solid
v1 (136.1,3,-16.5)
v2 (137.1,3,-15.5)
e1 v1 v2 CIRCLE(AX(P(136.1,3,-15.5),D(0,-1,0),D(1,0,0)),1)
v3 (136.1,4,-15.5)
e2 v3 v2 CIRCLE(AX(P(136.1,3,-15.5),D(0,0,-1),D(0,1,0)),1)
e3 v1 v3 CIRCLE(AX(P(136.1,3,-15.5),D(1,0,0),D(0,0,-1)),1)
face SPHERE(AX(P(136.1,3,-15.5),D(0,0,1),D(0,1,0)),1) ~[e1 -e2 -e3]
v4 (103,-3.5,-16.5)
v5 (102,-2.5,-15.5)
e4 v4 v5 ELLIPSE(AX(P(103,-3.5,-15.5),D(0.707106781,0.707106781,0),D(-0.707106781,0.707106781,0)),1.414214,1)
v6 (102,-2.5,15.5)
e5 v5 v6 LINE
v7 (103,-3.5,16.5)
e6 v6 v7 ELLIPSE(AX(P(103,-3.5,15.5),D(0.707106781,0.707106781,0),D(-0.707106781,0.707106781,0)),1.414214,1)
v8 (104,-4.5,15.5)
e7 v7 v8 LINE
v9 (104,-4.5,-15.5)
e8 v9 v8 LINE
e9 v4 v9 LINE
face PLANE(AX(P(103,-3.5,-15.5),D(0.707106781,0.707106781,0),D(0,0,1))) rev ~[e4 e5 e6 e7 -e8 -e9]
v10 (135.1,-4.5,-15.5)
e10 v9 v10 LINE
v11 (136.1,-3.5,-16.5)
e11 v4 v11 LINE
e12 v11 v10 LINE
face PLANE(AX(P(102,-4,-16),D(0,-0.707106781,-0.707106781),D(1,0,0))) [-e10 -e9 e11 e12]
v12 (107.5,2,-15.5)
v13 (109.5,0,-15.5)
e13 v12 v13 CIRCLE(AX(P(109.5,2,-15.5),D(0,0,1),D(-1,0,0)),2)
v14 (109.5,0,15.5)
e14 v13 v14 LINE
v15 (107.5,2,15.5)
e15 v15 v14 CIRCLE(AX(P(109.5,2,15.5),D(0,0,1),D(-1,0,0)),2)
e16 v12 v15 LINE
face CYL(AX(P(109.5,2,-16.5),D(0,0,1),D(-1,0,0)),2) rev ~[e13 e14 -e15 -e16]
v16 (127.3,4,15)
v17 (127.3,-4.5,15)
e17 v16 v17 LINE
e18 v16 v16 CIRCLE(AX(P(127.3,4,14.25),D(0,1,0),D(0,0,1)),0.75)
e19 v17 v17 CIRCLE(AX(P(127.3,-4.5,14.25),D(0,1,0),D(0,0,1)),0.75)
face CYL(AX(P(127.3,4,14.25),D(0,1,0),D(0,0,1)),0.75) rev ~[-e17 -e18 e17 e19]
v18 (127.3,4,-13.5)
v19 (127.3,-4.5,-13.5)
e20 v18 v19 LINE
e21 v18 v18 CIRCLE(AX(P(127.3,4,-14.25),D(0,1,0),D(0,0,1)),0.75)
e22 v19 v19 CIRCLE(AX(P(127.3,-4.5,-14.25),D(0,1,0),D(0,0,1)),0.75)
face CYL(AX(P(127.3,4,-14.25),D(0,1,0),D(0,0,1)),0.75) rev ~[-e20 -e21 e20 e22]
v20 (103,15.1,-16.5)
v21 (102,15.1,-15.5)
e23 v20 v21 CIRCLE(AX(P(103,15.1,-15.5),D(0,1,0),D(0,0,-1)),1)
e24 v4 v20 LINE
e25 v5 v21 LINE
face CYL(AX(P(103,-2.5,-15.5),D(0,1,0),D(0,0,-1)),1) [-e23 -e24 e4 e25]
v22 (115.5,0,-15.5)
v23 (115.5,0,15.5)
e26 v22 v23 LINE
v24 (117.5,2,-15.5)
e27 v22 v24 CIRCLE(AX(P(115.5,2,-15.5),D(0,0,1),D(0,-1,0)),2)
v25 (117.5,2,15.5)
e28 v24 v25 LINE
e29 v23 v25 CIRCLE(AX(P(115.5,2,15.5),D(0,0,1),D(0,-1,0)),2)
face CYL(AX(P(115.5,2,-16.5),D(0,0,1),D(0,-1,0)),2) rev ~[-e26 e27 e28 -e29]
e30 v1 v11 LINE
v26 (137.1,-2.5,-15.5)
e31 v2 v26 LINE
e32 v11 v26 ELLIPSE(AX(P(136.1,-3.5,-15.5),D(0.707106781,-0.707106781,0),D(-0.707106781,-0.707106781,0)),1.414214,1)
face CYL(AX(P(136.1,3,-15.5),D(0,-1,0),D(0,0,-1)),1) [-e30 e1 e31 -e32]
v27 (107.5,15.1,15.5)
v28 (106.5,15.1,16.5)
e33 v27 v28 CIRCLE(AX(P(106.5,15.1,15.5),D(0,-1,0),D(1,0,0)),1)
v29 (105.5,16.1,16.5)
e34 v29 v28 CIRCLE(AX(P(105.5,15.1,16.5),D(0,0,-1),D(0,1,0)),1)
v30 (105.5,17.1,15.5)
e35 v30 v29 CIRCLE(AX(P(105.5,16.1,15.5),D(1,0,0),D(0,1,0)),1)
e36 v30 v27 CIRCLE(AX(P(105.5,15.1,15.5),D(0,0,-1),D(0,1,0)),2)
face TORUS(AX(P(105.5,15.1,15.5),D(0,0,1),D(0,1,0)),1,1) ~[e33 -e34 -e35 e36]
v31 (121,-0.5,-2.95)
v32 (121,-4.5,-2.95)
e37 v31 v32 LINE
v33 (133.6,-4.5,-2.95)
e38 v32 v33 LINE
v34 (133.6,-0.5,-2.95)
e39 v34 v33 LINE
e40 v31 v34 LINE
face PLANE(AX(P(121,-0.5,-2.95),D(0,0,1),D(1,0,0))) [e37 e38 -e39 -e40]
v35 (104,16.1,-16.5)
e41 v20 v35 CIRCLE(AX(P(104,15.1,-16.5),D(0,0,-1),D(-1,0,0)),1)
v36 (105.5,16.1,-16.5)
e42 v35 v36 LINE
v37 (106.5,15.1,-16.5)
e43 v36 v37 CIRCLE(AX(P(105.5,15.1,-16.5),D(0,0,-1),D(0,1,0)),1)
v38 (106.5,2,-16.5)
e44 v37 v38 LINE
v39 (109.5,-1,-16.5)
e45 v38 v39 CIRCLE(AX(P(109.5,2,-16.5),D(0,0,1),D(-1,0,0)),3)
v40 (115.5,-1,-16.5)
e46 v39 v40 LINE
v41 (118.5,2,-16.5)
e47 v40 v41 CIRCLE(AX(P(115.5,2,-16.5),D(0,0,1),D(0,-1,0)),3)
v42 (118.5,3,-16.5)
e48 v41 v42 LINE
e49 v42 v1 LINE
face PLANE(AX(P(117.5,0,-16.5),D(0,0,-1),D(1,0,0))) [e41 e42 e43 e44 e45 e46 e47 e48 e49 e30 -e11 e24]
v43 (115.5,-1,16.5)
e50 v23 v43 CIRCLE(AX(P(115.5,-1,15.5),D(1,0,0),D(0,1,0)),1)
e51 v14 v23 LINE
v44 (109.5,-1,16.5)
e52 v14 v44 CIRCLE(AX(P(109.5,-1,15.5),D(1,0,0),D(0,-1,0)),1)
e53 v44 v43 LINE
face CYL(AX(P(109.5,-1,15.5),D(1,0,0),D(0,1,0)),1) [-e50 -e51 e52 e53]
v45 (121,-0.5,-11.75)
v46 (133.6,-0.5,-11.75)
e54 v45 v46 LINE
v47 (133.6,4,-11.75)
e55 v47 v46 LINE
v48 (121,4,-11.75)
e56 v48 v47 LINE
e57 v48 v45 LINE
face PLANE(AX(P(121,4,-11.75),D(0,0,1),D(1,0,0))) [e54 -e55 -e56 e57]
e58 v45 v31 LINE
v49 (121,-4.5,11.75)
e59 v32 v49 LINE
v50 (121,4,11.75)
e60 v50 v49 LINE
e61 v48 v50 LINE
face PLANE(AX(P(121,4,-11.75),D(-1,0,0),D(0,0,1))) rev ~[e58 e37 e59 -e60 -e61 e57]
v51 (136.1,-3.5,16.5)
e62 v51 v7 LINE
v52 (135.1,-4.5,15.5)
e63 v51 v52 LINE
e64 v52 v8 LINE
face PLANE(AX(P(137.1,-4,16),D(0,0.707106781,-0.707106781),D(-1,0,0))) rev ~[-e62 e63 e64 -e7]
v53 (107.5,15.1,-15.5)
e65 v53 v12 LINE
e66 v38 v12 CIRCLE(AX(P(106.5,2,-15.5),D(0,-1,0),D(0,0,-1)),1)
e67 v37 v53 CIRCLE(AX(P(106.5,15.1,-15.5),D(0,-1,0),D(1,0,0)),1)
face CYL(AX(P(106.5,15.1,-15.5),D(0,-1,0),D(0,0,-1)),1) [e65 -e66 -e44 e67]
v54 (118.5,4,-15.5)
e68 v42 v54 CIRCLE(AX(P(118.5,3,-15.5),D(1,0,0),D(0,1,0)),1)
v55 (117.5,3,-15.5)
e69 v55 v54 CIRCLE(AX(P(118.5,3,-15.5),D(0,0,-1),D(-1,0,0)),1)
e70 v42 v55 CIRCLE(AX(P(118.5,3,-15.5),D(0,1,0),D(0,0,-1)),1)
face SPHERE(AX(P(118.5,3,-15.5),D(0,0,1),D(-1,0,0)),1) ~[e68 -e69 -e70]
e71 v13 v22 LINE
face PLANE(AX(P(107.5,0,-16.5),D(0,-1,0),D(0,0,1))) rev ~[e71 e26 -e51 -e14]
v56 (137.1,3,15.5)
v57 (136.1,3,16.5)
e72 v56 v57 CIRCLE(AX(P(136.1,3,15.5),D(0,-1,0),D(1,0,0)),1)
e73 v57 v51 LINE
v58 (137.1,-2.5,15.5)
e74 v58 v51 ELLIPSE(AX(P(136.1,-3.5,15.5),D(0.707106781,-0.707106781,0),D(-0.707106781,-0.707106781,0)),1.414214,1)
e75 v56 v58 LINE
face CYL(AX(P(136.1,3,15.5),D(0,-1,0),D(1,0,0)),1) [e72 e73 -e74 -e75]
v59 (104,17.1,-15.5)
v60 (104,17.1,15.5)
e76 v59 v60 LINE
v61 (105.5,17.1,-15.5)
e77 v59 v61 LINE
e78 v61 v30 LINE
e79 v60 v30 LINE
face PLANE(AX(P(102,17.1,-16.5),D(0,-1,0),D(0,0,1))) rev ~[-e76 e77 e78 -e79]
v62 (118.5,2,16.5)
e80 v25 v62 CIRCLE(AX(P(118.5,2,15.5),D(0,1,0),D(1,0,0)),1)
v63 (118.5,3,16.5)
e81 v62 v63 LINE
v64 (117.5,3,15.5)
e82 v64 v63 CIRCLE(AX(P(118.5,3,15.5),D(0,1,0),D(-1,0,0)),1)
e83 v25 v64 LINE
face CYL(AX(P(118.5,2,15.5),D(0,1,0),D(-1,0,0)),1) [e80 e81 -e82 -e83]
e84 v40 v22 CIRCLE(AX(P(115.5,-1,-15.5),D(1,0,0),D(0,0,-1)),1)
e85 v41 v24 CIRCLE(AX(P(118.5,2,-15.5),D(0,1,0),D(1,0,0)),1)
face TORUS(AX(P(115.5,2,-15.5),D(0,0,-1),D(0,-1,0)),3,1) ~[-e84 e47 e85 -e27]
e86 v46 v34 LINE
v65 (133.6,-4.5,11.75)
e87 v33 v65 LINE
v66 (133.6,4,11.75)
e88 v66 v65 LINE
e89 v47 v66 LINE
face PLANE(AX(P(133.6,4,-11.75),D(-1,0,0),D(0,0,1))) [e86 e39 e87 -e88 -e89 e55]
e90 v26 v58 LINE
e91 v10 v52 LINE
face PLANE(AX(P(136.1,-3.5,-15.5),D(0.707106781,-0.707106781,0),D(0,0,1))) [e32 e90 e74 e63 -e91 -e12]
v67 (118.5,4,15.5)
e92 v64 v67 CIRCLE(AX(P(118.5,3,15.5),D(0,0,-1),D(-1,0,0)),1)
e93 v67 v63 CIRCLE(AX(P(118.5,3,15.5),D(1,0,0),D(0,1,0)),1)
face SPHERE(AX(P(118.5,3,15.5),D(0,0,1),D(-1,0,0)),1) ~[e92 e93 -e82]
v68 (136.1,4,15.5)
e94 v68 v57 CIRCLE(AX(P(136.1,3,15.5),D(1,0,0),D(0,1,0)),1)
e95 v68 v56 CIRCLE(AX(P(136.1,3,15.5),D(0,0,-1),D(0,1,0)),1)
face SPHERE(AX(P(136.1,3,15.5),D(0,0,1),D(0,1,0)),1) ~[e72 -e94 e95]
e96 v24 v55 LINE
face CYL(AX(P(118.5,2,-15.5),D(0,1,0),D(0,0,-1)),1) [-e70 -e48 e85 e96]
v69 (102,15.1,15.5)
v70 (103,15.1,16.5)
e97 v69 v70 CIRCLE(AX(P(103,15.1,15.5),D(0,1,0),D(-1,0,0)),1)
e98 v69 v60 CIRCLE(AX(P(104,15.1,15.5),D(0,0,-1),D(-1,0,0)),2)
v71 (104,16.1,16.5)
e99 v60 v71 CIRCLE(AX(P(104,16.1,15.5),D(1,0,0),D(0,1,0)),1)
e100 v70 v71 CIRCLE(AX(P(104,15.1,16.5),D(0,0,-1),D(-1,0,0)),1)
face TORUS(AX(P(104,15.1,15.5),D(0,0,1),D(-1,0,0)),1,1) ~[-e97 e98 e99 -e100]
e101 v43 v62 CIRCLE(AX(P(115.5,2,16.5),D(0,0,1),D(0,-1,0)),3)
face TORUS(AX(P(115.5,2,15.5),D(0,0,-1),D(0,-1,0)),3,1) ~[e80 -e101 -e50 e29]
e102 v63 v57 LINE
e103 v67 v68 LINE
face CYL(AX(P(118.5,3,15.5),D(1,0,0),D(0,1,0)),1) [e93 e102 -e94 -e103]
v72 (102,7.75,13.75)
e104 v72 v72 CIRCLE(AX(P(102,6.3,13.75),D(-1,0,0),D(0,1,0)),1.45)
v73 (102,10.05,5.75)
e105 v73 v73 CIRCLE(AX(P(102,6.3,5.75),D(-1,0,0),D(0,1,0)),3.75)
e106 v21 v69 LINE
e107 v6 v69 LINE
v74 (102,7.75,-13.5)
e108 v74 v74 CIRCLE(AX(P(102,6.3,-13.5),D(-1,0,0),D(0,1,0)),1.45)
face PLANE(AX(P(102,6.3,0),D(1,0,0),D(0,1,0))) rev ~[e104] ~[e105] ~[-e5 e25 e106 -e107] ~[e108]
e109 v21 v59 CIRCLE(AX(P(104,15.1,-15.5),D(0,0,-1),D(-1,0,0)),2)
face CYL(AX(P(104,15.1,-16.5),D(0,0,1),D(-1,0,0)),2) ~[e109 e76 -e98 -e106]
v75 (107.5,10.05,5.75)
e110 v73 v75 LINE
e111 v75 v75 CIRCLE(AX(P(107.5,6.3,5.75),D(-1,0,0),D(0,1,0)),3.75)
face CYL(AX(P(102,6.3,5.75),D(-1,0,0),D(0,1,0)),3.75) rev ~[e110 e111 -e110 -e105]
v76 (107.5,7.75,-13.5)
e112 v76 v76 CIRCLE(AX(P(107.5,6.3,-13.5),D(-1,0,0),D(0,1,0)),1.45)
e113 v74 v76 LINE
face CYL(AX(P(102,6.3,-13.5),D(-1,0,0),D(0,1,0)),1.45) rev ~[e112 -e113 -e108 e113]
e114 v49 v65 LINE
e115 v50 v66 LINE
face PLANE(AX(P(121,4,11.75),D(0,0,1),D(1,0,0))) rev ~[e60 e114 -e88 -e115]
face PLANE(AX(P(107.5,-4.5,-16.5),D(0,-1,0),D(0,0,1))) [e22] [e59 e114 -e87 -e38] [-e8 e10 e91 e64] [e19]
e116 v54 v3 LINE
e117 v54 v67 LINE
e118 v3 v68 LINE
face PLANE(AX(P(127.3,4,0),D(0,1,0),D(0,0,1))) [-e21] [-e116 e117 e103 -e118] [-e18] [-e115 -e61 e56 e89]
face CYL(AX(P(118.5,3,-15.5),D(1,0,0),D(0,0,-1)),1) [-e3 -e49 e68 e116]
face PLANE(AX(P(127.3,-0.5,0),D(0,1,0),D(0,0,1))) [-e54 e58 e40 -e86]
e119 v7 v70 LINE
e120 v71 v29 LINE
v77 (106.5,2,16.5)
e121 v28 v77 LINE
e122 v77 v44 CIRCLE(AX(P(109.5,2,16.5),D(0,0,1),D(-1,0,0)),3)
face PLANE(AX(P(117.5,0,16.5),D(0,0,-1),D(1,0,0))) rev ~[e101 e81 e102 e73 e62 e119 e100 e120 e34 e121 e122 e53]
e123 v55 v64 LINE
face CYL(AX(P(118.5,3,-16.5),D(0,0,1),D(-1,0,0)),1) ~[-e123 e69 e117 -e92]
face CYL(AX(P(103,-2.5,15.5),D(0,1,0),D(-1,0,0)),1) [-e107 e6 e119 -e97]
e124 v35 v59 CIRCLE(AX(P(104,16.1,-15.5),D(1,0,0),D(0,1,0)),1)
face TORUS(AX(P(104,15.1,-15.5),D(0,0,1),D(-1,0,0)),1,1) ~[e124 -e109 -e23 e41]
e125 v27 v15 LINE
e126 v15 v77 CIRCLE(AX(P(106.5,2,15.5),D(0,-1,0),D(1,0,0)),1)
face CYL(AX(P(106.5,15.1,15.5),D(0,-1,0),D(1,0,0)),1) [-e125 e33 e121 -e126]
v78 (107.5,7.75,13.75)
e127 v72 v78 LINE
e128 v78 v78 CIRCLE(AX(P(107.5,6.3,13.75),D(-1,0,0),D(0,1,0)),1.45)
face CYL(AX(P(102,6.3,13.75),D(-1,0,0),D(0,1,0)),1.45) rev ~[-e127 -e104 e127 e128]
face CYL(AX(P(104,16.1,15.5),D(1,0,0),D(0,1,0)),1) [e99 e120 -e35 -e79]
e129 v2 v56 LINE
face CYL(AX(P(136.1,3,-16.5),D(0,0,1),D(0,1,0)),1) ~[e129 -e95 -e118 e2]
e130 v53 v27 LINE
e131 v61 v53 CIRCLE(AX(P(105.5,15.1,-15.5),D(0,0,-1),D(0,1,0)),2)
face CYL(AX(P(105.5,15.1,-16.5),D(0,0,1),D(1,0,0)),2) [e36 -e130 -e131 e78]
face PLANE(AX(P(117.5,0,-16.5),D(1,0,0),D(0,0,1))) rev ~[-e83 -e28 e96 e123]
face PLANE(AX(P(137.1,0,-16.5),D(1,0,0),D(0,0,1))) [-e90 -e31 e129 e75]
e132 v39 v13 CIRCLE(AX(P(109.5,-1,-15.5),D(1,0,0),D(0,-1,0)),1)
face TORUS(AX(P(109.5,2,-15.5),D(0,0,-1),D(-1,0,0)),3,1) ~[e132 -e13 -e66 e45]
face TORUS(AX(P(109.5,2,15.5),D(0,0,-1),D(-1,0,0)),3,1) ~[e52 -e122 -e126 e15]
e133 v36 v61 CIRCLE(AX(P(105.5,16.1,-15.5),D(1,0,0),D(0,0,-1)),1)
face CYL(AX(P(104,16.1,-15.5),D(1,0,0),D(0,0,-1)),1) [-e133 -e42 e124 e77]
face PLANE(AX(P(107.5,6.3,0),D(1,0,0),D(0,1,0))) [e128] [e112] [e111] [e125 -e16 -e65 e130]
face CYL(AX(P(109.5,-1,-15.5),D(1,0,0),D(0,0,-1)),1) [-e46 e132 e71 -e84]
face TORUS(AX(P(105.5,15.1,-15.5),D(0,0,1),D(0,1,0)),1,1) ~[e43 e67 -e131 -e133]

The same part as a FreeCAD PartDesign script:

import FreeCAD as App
import Part
import Sketcher
from FreeCAD import Vector
Q = App.Units.Quantity


def edges_at(feature, points):
    """Names of the edges that pass closest to the given points."""
    edges = feature.Shape.Edges
    near = lambda p: min(range(len(edges)), key=lambda i: edges[i].distToShape(Part.Vertex(*p))[0])
    return sorted({f"Edge{near(p) + 1}" for p in points})


def add_polygon(sketch, points):
    """Adds a closed chain of lines whose ends are joined by coincident constraints."""
    first, n = sketch.GeometryCount, len(points)
    for a, b in zip(points, points[1:] + points[:1]):
        sketch.addGeometry(Part.LineSegment(App.Vector(*a, 0), App.Vector(*b, 0)), False)
    for i in range(n):
        sketch.addConstraint(Sketcher.Constraint("Coincident", first + i, 2, first + (i + 1) % n, 1))

doc = App.newDocument("Part")
body = doc.addObject("PartDesign::Body", "Body")

sketch1 = doc.addObject("Sketcher::SketchObject", "Sketch")
body.addObject(sketch1)
sketch1.AttachmentSupport = (doc.YZ_Plane, [""])
sketch1.MapMode = "FlatFace"
add_polygon(sketch1, [(-4, 16), (-4, -16), (17, -16), (17, 16)])
sketch1.addConstraint([
    Sketcher.Constraint("Vertical", 0),
    Sketcher.Constraint("Horizontal", 1),
    Sketcher.Constraint("Vertical", 2),
    Sketcher.Constraint("Horizontal", 3),
    Sketcher.Constraint("DistanceY", 0, 2, 0, 1, Q("33 mm")),
    Sketcher.Constraint("DistanceX", 1, 1, 1, 2, Q("21.6 mm")),
    Sketcher.Constraint("DistanceX", 0, 2, -1, 1, Q("4.5 mm")),
    Sketcher.Constraint("DistanceY", 0, 2, -1, 1, Q("16.5 mm")),
])
pad1 = doc.addObject("PartDesign::Pad", "Pad")
body.addObject(pad1)
pad1.Profile = sketch1
pad1.Length = 5.5

sketch2 = doc.addObject("Sketcher::SketchObject", "Sketch001")
body.addObject(sketch2)
sketch2.AttachmentSupport = (doc.YZ_Plane, [""])
sketch2.MapMode = "FlatFace"
sketch2.AttachmentOffset = App.Placement(Vector(0, 0, 5.5), App.Rotation())
add_polygon(sketch2, [(-4.5, 16.5), (-4.5, -16.5), (0, -16.5), (0, 16.5)])
sketch2.addConstraint([
    Sketcher.Constraint("Vertical", 0),
    Sketcher.Constraint("Horizontal", 1),
    Sketcher.Constraint("Vertical", 2),
    Sketcher.Constraint("Horizontal", 3),
    Sketcher.Constraint("Symmetric", 1, 2, 2, 2, -1, 1),
    Sketcher.Constraint("DistanceY", 0, 2, 0, 1, Q("33 mm")),
    Sketcher.Constraint("DistanceX", 1, 1, 1, 2, Q("4.5 mm")),
])
pad2 = doc.addObject("PartDesign::Pad", "Pad001")
body.addObject(pad2)
pad2.Profile = sketch2
pad2.Length = 29.6

sketch3 = doc.addObject("Sketcher::SketchObject", "Sketch002")
body.addObject(sketch3)
sketch3.AttachmentSupport = (doc.XZ_Plane, [""])
sketch3.MapMode = "FlatFace"
add_polygon(sketch3, [(35, -16), (16, -16), (16, 16), (35, 16)])
sketch3.addConstraint([
    Sketcher.Constraint("Horizontal", 0),
    Sketcher.Constraint("Vertical", 1),
    Sketcher.Constraint("Horizontal", 2),
    Sketcher.Constraint("Vertical", 3),
    Sketcher.Constraint("DistanceY", 1, 1, 1, 2, Q("33 mm")),
    Sketcher.Constraint("DistanceX", 0, 2, 0, 1, Q("19.6 mm")),
    Sketcher.Constraint("DistanceX", -1, 1, 0, 2, Q("15.5 mm")),
    Sketcher.Constraint("DistanceY", 0, 2, -1, 1, Q("16.5 mm")),
])
pad3 = doc.addObject("PartDesign::Pad", "Pad002")
body.addObject(pad3)
pad3.Profile = sketch3
pad3.Length = 4
pad3.Reversed = True

sketch4 = doc.addObject("Sketcher::SketchObject", "Sketch003")
body.addObject(sketch4)
sketch4.AttachmentSupport = (doc.XZ_Plane, [""])
sketch4.MapMode = "FlatFace"
sketch4.AttachmentOffset = App.Placement(Vector(0, 0, -4), App.Rotation())
add_polygon(sketch4, [(32, -12), (19, -12), (19, 12), (32, 12)])
sketch4.addConstraint([
    Sketcher.Constraint("Horizontal", 0),
    Sketcher.Constraint("Vertical", 1),
    Sketcher.Constraint("Horizontal", 2),
    Sketcher.Constraint("Vertical", 3),
    Sketcher.Constraint("DistanceX", 0, 2, 0, 1, Q("12.6 mm")),
    Sketcher.Constraint("DistanceY", 1, 1, 1, 2, Q("23.5 mm")),
    Sketcher.Constraint("DistanceX", -1, 1, 0, 2, Q("19 mm")),
    Sketcher.Constraint("DistanceY", 0, 2, -1, 1, Q("11.75 mm")),
])
pocket1 = doc.addObject("PartDesign::Pocket", "Pocket")
body.addObject(pocket1)
pocket1.Profile = sketch4
pocket1.Length = 4.5
pocket1.Reversed = True

sketch5 = doc.addObject("Sketcher::SketchObject", "Sketch004")
body.addObject(sketch5)
sketch5.AttachmentSupport = (doc.XZ_Plane, [""])
sketch5.MapMode = "FlatFace"
sketch5.AttachmentOffset = App.Placement(Vector(0, 0, 0.5), App.Rotation())
add_polygon(sketch5, [(32, -3), (19, -3), (19, 12), (32, 12)])
sketch5.addConstraint([
    Sketcher.Constraint("Horizontal", 0),
    Sketcher.Constraint("Vertical", 1),
    Sketcher.Constraint("Horizontal", 2),
    Sketcher.Constraint("Vertical", 3),
    Sketcher.Constraint("DistanceX", 0, 2, 0, 1, Q("12.6 mm")),
    Sketcher.Constraint("DistanceY", 1, 1, 1, 2, Q("14.7 mm")),
    Sketcher.Constraint("DistanceX", -1, 1, 0, 2, Q("19 mm")),
    Sketcher.Constraint("DistanceY", 0, 2, -1, 1, Q("2.95 mm")),
])
pocket2 = doc.addObject("PartDesign::Pocket", "Pocket001")
body.addObject(pocket2)
pocket2.Profile = sketch5
pocket2.Length = 4
pocket2.Reversed = True

sketch6 = doc.addObject("Sketcher::SketchObject", "Sketch005")
body.addObject(sketch6)
sketch6.AttachmentSupport = (doc.XZ_Plane, [""])
sketch6.MapMode = "FlatFace"
sketch6.AttachmentOffset = App.Placement(Vector(0, 0, -4), App.Rotation())
sketch6.addGeometry([
    Part.Circle(Vector(25.3, -14.2, 0), Vector(0, 0, 1), 0.8),
    Part.Circle(Vector(25.3, 14.2, 0), Vector(0, 0, 1), 0.8),
], False)
sketch6.addConstraint([
    Sketcher.Constraint("Equal", 0, 1),
    Sketcher.Constraint("Symmetric", 0, 3, 1, 3, -1),
    Sketcher.Constraint("Diameter", 0, Q("1.5 mm")),
    Sketcher.Constraint("DistanceX", -1, 1, 0, 3, Q("25.3 mm")),
    Sketcher.Constraint("DistanceY", 0, 3, 1, 3, Q("28.5 mm")),
])
pocket3 = doc.addObject("PartDesign::Pocket", "Pocket002")
body.addObject(pocket3)
pocket3.Profile = sketch6
pocket3.Length = 9
pocket3.Reversed = True
doc.recompute()

chamfer = doc.addObject("PartDesign::Chamfer", "Chamfer")
body.addObject(chamfer)
chamfer.Base = (pocket3, edges_at(pocket3, [(17.55, -4.5, 16.5), (17.55, -4.5, -16.5)]))
chamfer.Size = 1
doc.recompute()

chamfer2 = doc.addObject("PartDesign::Chamfer", "Chamfer001")
body.addObject(chamfer2)
chamfer2.Base = (chamfer, edges_at(chamfer, [(0, -4.5, 0), (35.1, -4.5, 0)]))
chamfer2.Size = 2
doc.recompute()

fillet = doc.addObject("PartDesign::Fillet", "Fillet")
body.addObject(fillet)
fillet.Base = (chamfer2, edges_at(chamfer2, [(0, 17.1, 0), (5.5, 17.1, 0)]))
fillet.Radius = 2
doc.recompute()

fillet2 = doc.addObject("PartDesign::Fillet", "Fillet001")
body.addObject(fillet2)
fillet2.Base = (fillet, edges_at(fillet, [(5.5, 0, 0)]))
fillet2.Radius = 2
doc.recompute()

fillet3 = doc.addObject("PartDesign::Fillet", "Fillet002")
body.addObject(fillet3)
fillet3.Base = (fillet2, edges_at(fillet2, [(15.5, 0, 0)]))
fillet3.Radius = 2
doc.recompute()

fillet4 = doc.addObject("PartDesign::Fillet", "Fillet003")
body.addObject(fillet4)
fillet4.Base = (fillet3, edges_at(fillet3, [(15.5, 4, 0), (35.1, 4, 0)]))
fillet4.Radius = 1
doc.recompute()

fillet5 = doc.addObject("PartDesign::Fillet", "Fillet004")
body.addObject(fillet5)
fillet5.Base = (fillet4, edges_at(fillet4, [(25.3, 4, 16.5), (25.3, 4, -16.5)]))
fillet5.Radius = 1

sketch7 = doc.addObject("Sketcher::SketchObject", "Sketch006")
body.addObject(sketch7)
sketch7.AttachmentSupport = (doc.YZ_Plane, [""])
sketch7.MapMode = "FlatFace"
sketch7.addGeometry([
    Part.Circle(Vector(6.3, 5.8, 0), Vector(0, 0, 1), 3.8),
    Part.Circle(Vector(6.3, 13.8, 0), Vector(0, 0, 1), 1.4),
    Part.Circle(Vector(6.3, -13.5, 0), Vector(0, 0, 1), 1.4),
], False)
sketch7.addConstraint([
    Sketcher.Constraint("Equal", 1, 2),
    Sketcher.Constraint("Vertical", 0, 3, 1, 3),
    Sketcher.Constraint("Vertical", 1, 3, 2, 3),
    Sketcher.Constraint("Diameter", 0, Q("7.5 mm")),
    Sketcher.Constraint("Diameter", 1, Q("2.9 mm")),
    Sketcher.Constraint("DistanceY", 0, 3, 1, 3, Q("8 mm")),
    Sketcher.Constraint("DistanceX", -1, 1, 0, 3, Q("6.3 mm")),
    Sketcher.Constraint("DistanceY", 2, 3, -1, 1, Q("13.5 mm")),
    Sketcher.Constraint("DistanceY", -1, 1, 0, 3, Q("5.75 mm")),
])
pocket4 = doc.addObject("PartDesign::Pocket", "Pocket003")
body.addObject(pocket4)
pocket4.Profile = sketch7
pocket4.Length = 6
pocket4.Reversed = True
body2 = doc.addObject("PartDesign::Body", "Body001")
doc.recompute()

body.Placement = App.Placement(Vector(102, 0, 0), App.Rotation(Vector(0, 0, 1), 0))
boolean = doc.addObject("PartDesign::Boolean", "Boolean")
body2.addObject(boolean)
boolean.Type = "Fuse"
boolean.addObjects([body])

doc.recompute()
